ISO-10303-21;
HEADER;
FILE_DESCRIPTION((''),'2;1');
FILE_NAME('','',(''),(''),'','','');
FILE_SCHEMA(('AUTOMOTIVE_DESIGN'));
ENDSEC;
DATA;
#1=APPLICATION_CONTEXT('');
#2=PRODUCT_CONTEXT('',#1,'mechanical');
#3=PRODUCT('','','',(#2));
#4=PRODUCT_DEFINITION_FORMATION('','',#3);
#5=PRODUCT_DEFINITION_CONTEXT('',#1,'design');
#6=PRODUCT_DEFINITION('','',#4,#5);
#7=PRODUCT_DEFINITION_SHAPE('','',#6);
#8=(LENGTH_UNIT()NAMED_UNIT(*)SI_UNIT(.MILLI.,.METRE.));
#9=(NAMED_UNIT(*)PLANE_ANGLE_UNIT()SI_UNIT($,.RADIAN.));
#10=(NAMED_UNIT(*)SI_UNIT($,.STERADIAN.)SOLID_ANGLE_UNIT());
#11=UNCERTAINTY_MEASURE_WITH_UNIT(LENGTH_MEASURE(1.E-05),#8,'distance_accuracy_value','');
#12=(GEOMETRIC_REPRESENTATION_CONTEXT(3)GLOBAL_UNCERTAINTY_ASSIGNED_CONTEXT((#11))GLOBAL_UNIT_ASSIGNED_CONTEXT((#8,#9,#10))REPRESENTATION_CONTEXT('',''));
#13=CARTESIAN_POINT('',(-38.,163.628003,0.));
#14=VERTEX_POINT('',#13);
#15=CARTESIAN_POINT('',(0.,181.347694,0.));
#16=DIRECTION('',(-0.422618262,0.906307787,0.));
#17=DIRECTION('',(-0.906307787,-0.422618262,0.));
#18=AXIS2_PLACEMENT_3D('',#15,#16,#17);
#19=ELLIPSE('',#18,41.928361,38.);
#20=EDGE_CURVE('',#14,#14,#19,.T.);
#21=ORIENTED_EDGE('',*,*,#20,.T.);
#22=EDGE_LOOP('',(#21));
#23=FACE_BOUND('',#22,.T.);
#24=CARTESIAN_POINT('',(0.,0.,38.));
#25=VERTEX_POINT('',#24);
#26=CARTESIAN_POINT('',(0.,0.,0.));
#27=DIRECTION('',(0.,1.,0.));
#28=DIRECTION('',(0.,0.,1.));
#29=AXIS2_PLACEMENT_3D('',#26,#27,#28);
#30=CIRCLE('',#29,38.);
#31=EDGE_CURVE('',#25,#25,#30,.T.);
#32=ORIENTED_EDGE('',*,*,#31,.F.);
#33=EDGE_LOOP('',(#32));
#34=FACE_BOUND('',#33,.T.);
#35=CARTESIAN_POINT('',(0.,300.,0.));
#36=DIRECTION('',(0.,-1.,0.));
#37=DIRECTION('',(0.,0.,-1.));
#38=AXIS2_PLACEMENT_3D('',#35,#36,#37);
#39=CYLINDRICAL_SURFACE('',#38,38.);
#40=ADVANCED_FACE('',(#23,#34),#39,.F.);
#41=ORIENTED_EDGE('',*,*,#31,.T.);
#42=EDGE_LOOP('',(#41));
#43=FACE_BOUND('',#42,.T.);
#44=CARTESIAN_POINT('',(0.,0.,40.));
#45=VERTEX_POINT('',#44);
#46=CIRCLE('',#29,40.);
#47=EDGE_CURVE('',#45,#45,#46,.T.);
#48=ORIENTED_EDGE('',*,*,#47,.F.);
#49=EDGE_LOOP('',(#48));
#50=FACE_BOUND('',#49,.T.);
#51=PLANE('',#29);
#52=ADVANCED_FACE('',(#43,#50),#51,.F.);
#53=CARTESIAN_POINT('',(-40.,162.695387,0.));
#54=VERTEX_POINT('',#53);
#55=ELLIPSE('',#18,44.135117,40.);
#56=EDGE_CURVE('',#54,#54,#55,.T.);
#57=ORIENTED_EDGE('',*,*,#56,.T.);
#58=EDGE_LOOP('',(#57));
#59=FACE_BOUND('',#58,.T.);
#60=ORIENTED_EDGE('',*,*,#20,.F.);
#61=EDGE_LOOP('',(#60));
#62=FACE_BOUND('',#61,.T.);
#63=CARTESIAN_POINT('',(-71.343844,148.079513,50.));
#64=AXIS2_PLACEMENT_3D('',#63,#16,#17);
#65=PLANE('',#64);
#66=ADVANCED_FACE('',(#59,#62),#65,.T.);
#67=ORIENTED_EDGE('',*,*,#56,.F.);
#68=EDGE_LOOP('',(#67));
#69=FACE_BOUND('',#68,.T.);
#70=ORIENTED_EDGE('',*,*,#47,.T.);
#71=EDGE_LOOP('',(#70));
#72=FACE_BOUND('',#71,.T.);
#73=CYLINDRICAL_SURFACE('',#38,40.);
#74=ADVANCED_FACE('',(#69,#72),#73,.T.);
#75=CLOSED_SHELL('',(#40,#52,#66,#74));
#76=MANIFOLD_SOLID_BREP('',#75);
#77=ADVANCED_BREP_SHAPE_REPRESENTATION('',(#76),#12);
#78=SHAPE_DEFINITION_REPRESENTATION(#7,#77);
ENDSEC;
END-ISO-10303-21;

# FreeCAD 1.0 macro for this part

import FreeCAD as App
import Part
import Sketcher
from FreeCAD import Vector
Q = App.Units.Quantity


def add_polygon(sketch, points):
    """Adds a closed chain of lines whose ends are joined by coincident constraints."""
    first, n = sketch.GeometryCount, len(points)
    for a, b in zip(points, points[1:] + points[:1]):
        sketch.addGeometry(Part.LineSegment(App.Vector(*a, 0), App.Vector(*b, 0)), False)
    for i in range(n):
        sketch.addConstraint(Sketcher.Constraint("Coincident", first + i, 2, first + (i + 1) % n, 1))

doc = App.newDocument("Part")
body = doc.addObject("PartDesign::Body", "Body")

# Sketch on XZ plane
sketch1 = body.newObject("Sketcher::SketchObject", "Sketch")
sketch1.AttachmentSupport = (doc.getObject("XZ_Plane"), [""])
sketch1.MapMode = "FlatFace"
sketch1.addGeometry(Part.Circle(Vector(0, 0, 0), Vector(0, 0, 1), 40), False)
sketch1.addGeometry(Part.Circle(Vector(0, 0, 0), Vector(0, 0, 1), 38), False)
sketch1.addConstraint(Sketcher.Constraint("Coincident", 0, 3, -1, 1))
sketch1.addConstraint(Sketcher.Constraint("Coincident", 1, 3, -1, 1))
sketch1.addConstraint(Sketcher.Constraint("Diameter", 0, Q("80 mm")))
sketch1.addConstraint(Sketcher.Constraint("Diameter", 1, Q("76 mm")))
pad1 = body.newObject("PartDesign::Pad", "Pad")
pad1.Profile = sketch1
pad1.Length = 300
pad1.Reversed = True

# Sketch on XY plane
sketch2 = body.newObject("Sketcher::SketchObject", "Sketch001")
sketch2.AttachmentSupport = (doc.getObject("XY_Plane"), [""])
sketch2.MapMode = "FlatFace"
add_polygon(sketch2, [(52.964597, 206.045491), (52.964597, 318.753763), (-71.343844, 318.753763), (-71.343844, 148.079513)])  # lines 0-3
sketch2.addConstraint(Sketcher.Constraint("Vertical", 0))
sketch2.addConstraint(Sketcher.Constraint("Horizontal", 1))
sketch2.addConstraint(Sketcher.Constraint("Vertical", 2))
sketch2.addConstraint(Sketcher.Constraint("Angle", 3, Q("25 deg")))
sketch2.addConstraint(Sketcher.Constraint("DistanceX", 1, 2, 1, 1, Q("124.308441 mm")))
sketch2.addConstraint(Sketcher.Constraint("DistanceY", 0, 1, 0, 2, Q("112.708272 mm")))
sketch2.addConstraint(Sketcher.Constraint("DistanceY", -1, 1, 3, 2, Q("206.045491 mm")))
sketch2.addConstraint(Sketcher.Constraint("DistanceX", -1, 1, 0, 2, Q("52.964597 mm")))
pocket1 = body.newObject("PartDesign::Pocket", "Pocket")
pocket1.Profile = sketch2
pocket1.Type = "ThroughAll"
pocket1.Midplane = True

doc.recompute()
